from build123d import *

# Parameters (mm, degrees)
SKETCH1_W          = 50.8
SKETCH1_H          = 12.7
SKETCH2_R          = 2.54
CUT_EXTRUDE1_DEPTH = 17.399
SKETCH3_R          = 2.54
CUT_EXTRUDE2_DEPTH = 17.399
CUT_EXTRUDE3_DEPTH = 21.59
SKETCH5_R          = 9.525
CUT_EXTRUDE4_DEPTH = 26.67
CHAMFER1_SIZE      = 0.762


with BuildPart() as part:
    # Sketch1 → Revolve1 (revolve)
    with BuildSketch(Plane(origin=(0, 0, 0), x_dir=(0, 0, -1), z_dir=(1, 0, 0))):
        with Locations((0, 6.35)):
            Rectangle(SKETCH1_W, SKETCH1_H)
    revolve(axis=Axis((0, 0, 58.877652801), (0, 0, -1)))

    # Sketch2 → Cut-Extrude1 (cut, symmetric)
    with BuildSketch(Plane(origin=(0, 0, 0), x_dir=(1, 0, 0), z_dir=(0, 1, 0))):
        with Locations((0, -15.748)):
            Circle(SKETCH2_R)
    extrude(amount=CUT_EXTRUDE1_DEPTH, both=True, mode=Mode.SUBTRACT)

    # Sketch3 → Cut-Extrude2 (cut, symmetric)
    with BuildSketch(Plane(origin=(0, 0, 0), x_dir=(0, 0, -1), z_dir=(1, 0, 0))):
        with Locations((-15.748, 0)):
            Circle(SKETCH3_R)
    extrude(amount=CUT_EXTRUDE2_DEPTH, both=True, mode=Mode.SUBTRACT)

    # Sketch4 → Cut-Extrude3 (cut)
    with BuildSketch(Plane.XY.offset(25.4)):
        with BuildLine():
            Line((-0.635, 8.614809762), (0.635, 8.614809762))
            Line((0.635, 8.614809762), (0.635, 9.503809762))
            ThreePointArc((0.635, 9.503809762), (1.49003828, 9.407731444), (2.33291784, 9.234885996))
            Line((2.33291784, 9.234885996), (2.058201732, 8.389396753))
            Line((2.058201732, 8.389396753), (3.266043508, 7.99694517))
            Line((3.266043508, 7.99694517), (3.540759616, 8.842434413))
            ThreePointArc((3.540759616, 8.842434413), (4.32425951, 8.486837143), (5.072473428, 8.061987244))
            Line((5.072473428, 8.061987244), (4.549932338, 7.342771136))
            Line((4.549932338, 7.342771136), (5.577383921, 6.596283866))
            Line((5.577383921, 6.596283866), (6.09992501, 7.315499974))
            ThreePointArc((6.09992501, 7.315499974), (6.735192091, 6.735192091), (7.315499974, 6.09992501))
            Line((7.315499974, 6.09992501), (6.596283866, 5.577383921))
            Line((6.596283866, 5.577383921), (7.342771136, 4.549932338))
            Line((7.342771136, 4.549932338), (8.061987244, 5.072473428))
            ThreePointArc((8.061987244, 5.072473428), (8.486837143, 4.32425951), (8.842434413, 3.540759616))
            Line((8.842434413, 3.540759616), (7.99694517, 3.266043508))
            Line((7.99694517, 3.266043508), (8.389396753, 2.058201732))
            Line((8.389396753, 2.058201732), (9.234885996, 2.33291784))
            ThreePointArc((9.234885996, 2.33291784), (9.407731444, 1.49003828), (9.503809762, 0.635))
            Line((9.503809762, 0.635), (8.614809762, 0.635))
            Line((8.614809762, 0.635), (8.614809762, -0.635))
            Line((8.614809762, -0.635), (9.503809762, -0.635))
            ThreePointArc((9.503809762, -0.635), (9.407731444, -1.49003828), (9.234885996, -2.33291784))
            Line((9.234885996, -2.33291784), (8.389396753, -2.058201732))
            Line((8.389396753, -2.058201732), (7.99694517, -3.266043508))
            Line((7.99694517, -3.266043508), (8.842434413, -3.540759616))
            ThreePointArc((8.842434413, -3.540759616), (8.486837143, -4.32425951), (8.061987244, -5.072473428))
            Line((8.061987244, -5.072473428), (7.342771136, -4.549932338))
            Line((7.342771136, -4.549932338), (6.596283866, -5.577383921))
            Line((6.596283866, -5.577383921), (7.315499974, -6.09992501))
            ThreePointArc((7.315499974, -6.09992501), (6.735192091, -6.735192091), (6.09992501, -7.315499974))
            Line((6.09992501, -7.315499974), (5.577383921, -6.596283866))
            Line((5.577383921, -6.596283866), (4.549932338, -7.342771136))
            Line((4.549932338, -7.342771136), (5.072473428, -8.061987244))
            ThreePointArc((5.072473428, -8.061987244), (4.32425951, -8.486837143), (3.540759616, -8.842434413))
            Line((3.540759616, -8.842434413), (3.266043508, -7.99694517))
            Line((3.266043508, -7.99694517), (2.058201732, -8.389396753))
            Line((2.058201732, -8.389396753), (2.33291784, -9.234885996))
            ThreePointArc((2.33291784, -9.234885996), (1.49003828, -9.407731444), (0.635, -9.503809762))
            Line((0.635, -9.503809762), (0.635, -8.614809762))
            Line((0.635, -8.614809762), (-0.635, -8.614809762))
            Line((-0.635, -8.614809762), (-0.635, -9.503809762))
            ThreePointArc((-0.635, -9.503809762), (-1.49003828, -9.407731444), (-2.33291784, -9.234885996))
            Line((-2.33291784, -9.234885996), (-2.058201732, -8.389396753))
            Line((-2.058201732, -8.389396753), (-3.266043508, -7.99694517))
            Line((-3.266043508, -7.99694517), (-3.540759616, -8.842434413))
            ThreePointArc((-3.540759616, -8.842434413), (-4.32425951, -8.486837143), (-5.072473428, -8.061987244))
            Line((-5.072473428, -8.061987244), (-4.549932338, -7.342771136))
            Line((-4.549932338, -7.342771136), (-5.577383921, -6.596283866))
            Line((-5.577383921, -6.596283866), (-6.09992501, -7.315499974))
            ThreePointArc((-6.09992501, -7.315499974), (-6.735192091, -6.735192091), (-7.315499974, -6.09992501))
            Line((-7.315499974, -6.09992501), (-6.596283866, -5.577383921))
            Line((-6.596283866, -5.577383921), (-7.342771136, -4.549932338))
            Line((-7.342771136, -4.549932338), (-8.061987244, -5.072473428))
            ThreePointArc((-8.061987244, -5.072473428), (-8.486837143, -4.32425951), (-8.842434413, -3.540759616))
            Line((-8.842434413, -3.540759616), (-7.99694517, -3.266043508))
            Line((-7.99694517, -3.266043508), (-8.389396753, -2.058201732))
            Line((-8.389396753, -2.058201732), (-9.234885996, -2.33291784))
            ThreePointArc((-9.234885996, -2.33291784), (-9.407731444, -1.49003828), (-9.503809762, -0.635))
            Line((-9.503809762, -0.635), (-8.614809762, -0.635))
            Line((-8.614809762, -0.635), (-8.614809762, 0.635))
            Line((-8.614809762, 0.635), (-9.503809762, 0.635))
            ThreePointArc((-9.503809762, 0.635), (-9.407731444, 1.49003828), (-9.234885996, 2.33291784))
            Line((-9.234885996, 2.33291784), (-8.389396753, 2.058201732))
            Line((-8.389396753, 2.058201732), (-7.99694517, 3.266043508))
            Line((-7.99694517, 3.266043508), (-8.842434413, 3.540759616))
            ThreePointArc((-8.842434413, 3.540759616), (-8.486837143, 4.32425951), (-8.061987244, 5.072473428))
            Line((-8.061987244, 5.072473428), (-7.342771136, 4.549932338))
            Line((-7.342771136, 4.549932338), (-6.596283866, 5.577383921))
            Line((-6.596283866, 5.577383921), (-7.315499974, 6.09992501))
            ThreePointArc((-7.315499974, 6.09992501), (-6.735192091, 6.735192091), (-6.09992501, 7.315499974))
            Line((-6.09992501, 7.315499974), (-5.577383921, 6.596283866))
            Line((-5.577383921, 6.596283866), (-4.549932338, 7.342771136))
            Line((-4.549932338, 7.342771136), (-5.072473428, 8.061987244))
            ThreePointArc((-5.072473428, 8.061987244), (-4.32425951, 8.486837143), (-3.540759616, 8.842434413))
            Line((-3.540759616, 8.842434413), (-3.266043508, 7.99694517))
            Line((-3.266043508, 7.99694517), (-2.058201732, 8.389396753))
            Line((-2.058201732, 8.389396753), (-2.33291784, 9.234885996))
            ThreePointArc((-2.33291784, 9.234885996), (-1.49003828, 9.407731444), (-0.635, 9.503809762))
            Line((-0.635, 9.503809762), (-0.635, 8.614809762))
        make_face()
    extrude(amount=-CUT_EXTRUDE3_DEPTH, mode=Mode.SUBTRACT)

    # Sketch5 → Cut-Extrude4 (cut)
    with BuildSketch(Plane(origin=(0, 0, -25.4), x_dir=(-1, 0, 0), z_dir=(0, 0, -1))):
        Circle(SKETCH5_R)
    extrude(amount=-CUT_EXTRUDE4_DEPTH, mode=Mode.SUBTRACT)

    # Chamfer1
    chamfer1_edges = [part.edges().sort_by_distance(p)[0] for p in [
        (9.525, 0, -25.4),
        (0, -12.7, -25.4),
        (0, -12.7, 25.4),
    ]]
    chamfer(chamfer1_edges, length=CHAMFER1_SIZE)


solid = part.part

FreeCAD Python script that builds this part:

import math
import FreeCAD as App
import Part
import Sketcher
from FreeCAD import Vector
Q = App.Units.Quantity


def edges_at(feature, points):
    """Names of the edges that pass closest to the given points."""
    edges = feature.Shape.Edges
    near = lambda p: min(range(len(edges)), key=lambda i: edges[i].distToShape(Part.Vertex(*p))[0])
    return sorted({f"Edge{near(p) + 1}" for p in points})


def add_polygon(sketch, points):
    """Adds a closed chain of lines whose ends are joined by coincident constraints."""
    first, n = sketch.GeometryCount, len(points)
    for a, b in zip(points, points[1:] + points[:1]):
        sketch.addGeometry(Part.LineSegment(App.Vector(*a, 0), App.Vector(*b, 0)), False)
    for i in range(n):
        sketch.addConstraint(Sketcher.Constraint("Coincident", first + i, 2, first + (i + 1) % n, 1))

doc = App.newDocument("Part")
params = doc.addObject("Spreadsheet::Sheet", "Params")
for row, (alias, value) in enumerate([
    ("sketch1_height", "2 in"),
    ("sketch1_width", "0.5 in"),
    ("revolution_angle", "360 deg"),
    ("sketch2_diameter", "0.2 in"),
    ("pocket1_length", "1.37 in"),
    ("sketch3_diameter", "0.2 in"),
    ("pocket2_length", "1.37 in"),
    ("sketch4_radius", "0.375 in"),
    ("sketch4_width", "0.05 in"),
    ("sketch4_length", "0.05 in"),
    ("sketch4_width2", "0.035 in"),
    ("sketch4_length2", "0.035 in"),
    ("pocket3_length", "0.85 in"),
    ("sketch5_diameter", "0.75 in"),
    ("pocket4_length", "1.05 in"),
    ("chamfer_size", "0.03 in"),
], start=1):
    params.set(f"A{row}", alias)
    params.set(f"B{row}", "=" + value)
    params.setAlias(f"B{row}", alias)

body = doc.addObject("PartDesign::Body", "Body")

# Sketch on YZ plane
sketch1 = body.newObject("Sketcher::SketchObject", "Sketch")
sketch1.AttachmentSupport = (doc.getObject("YZ_Plane"), [""])
sketch1.MapMode = "FlatFace"
add_polygon(sketch1, [(13, 25), (0, 25), (0, -25), (13, -25)])  # lines 0-3
sketch1.addConstraint([
    Sketcher.Constraint("Horizontal", 0),
    Sketcher.Constraint("Vertical", 1),
    Sketcher.Constraint("Horizontal", 2),
    Sketcher.Constraint("Vertical", 3),
    Sketcher.Constraint("Symmetric", 0, 2, 1, 2, -1, 1),
    Sketcher.Constraint("DistanceY", 1, 2, 1, 1, Q("2 in")),
    Sketcher.Constraint("DistanceX", 0, 2, 0, 1, Q("0.5 in")),
])
sketch1.setExpression("Constraints[9]", "Params.sketch1_height")
sketch1.setExpression("Constraints[10]", "Params.sketch1_width")
revolution = body.newObject("PartDesign::Revolution", "Revolution")
revolution.Profile = sketch1
revolution.ReferenceAxis = (sketch1, ["V_Axis"])
revolution.setExpression("Angle", "Params.revolution_angle")

# Sketch on XZ plane
sketch2 = body.newObject("Sketcher::SketchObject", "Sketch001")
sketch2.AttachmentSupport = (doc.getObject("XZ_Plane"), [""])
sketch2.MapMode = "FlatFace"
sketch2.addGeometry(Part.Circle(Vector(0, 15.7, 0), Vector(0, 0, 1), 2.5), False)
sketch2.addConstraint([
    Sketcher.Constraint("PointOnObject", 0, 3, -2),
    Sketcher.Constraint("Diameter", 0, Q("0.2 in")),
    Sketcher.Constraint("DistanceY", -1, 1, 0, 3, Q("0.62 in")),
])
sketch2.setExpression("Constraints[1]", "Params.sketch2_diameter")
pocket1 = body.newObject("PartDesign::Pocket", "Pocket")
pocket1.Profile = sketch2
pocket1.setExpression("Length", "Params.pocket1_length")
pocket1.Midplane = True

# Sketch on YZ plane
sketch3 = body.newObject("Sketcher::SketchObject", "Sketch002")
sketch3.AttachmentSupport = (doc.getObject("YZ_Plane"), [""])
sketch3.MapMode = "FlatFace"
sketch3.addGeometry(Part.Circle(Vector(0, 15.7, 0), Vector(0, 0, 1), 2.5), False)
sketch3.addConstraint([
    Sketcher.Constraint("PointOnObject", 0, 3, -2),
    Sketcher.Constraint("Diameter", 0, Q("0.2 in")),
    Sketcher.Constraint("DistanceY", -1, 1, 0, 3, Q("0.62 in")),
])
sketch3.setExpression("Constraints[1]", "Params.sketch3_diameter")
pocket2 = body.newObject("PartDesign::Pocket", "Pocket001")
pocket2.Profile = sketch3
pocket2.setExpression("Length", "Params.pocket2_length")
pocket2.Midplane = True

# Sketch on XY plane
sketch4 = body.newObject("Sketcher::SketchObject", "Sketch003")
sketch4.AttachmentSupport = (doc.getObject("XY_Plane"), [""])
sketch4.MapMode = "FlatFace"
sketch4.AttachmentOffset = App.Placement(Vector(0, 0, 1 * 25.4), App.Rotation())
sketch4.addGeometry([
    Part.LineSegment(Vector(0.6, 8.6, 0), Vector(-0.6, 8.6, 0)),  # 0
    Part.LineSegment(Vector(-0.6, 8.6, 0), Vector(-0.6, 9.5, 0)),  # 1
    Part.ArcOfCircle(Part.Circle(Vector(0, 0, 0), Vector(0, 0, 1), 9.5), math.radians(93.82), math.radians(104.18)),  # 2
    Part.LineSegment(Vector(-2.3, 9.2, 0), Vector(-2.1, 8.4, 0)),  # 3
    Part.LineSegment(Vector(-2.1, 8.4, 0), Vector(-3.3, 8, 0)),  # 4
    Part.LineSegment(Vector(-3.3, 8, 0), Vector(-3.5, 8.8, 0)),  # 5
    Part.ArcOfCircle(Part.Circle(Vector(0, 0, 0), Vector(0, 0, 1), 9.5), math.radians(111.82), math.radians(122.18)),  # 6
    Part.LineSegment(Vector(-5.1, 8.1, 0), Vector(-4.5, 7.3, 0)),  # 7
    Part.LineSegment(Vector(-4.5, 7.3, 0), Vector(-5.6, 6.6, 0)),  # 8
    Part.LineSegment(Vector(-5.6, 6.6, 0), Vector(-6.1, 7.3, 0)),  # 9
    Part.ArcOfCircle(Part.Circle(Vector(0, 0, 0), Vector(0, 0, 1), 9.5), math.radians(129.82), math.radians(140.18)),  # 10
    Part.LineSegment(Vector(-7.3, 6.1, 0), Vector(-6.6, 5.6, 0)),  # 11
    Part.LineSegment(Vector(-6.6, 5.6, 0), Vector(-7.3, 4.5, 0)),  # 12
    Part.LineSegment(Vector(-7.3, 4.5, 0), Vector(-8.1, 5.1, 0)),  # 13
    Part.ArcOfCircle(Part.Circle(Vector(0, 0, 0), Vector(0, 0, 1), 9.5), math.radians(147.82), math.radians(158.18)),  # 14
    Part.LineSegment(Vector(-8.8, 3.5, 0), Vector(-8, 3.3, 0)),  # 15
    Part.LineSegment(Vector(-8, 3.3, 0), Vector(-8.4, 2.1, 0)),  # 16
    Part.LineSegment(Vector(-8.4, 2.1, 0), Vector(-9.2, 2.3, 0)),  # 17
    Part.ArcOfCircle(Part.Circle(Vector(0, 0, 0), Vector(0, 0, 1), 9.5), math.radians(165.82), math.radians(176.18)),  # 18
    Part.LineSegment(Vector(-9.5, 0.6, 0), Vector(-8.6, 0.6, 0)),  # 19
    Part.LineSegment(Vector(-8.6, 0.6, 0), Vector(-8.6, -0.6, 0)),  # 20
    Part.LineSegment(Vector(-8.6, -0.6, 0), Vector(-9.5, -0.6, 0)),  # 21
    Part.ArcOfCircle(Part.Circle(Vector(0, 0, 0), Vector(0, 0, 1), 9.5), math.radians(-176.18), math.radians(-165.82)),  # 22
    Part.LineSegment(Vector(-9.2, -2.3, 0), Vector(-8.4, -2.1, 0)),  # 23
    Part.LineSegment(Vector(-8.4, -2.1, 0), Vector(-8, -3.3, 0)),  # 24
    Part.LineSegment(Vector(-8, -3.3, 0), Vector(-8.8, -3.5, 0)),  # 25
    Part.ArcOfCircle(Part.Circle(Vector(0, 0, 0), Vector(0, 0, 1), 9.5), math.radians(-158.18), math.radians(-147.82)),  # 26
    Part.LineSegment(Vector(-8.1, -5.1, 0), Vector(-7.3, -4.5, 0)),  # 27
    Part.LineSegment(Vector(-7.3, -4.5, 0), Vector(-6.6, -5.6, 0)),  # 28
    Part.LineSegment(Vector(-6.6, -5.6, 0), Vector(-7.3, -6.1, 0)),  # 29
    Part.ArcOfCircle(Part.Circle(Vector(0, 0, 0), Vector(0, 0, 1), 9.5), math.radians(-140.18), math.radians(-129.82)),  # 30
    Part.LineSegment(Vector(-6.1, -7.3, 0), Vector(-5.6, -6.6, 0)),  # 31
    Part.LineSegment(Vector(-5.6, -6.6, 0), Vector(-4.5, -7.3, 0)),  # 32
    Part.LineSegment(Vector(-4.5, -7.3, 0), Vector(-5.1, -8.1, 0)),  # 33
    Part.ArcOfCircle(Part.Circle(Vector(0, 0, 0), Vector(0, 0, 1), 9.5), math.radians(-122.18), math.radians(-111.82)),  # 34
    Part.LineSegment(Vector(-3.5, -8.8, 0), Vector(-3.3, -8, 0)),  # 35
    Part.LineSegment(Vector(-3.3, -8, 0), Vector(-2.1, -8.4, 0)),  # 36
    Part.LineSegment(Vector(-2.1, -8.4, 0), Vector(-2.3, -9.2, 0)),  # 37
    Part.ArcOfCircle(Part.Circle(Vector(0, 0, 0), Vector(0, 0, 1), 9.5), math.radians(-104.18), math.radians(-93.82)),  # 38
    Part.LineSegment(Vector(-0.6, -9.5, 0), Vector(-0.6, -8.6, 0)),  # 39
    Part.LineSegment(Vector(-0.6, -8.6, 0), Vector(0.6, -8.6, 0)),  # 40
    Part.LineSegment(Vector(0.6, -8.6, 0), Vector(0.6, -9.5, 0)),  # 41
    Part.ArcOfCircle(Part.Circle(Vector(0, 0, 0), Vector(0, 0, 1), 9.5), math.radians(-86.18), math.radians(-75.82)),  # 42
    Part.LineSegment(Vector(2.3, -9.2, 0), Vector(2.1, -8.4, 0)),  # 43
    Part.LineSegment(Vector(2.1, -8.4, 0), Vector(3.3, -8, 0)),  # 44
    Part.LineSegment(Vector(3.3, -8, 0), Vector(3.5, -8.8, 0)),  # 45
    Part.ArcOfCircle(Part.Circle(Vector(0, 0, 0), Vector(0, 0, 1), 9.5), math.radians(-68.18), math.radians(-57.82)),  # 46
    Part.LineSegment(Vector(5.1, -8.1, 0), Vector(4.5, -7.3, 0)),  # 47
    Part.LineSegment(Vector(4.5, -7.3, 0), Vector(5.6, -6.6, 0)),  # 48
    Part.LineSegment(Vector(5.6, -6.6, 0), Vector(6.1, -7.3, 0)),  # 49
    Part.ArcOfCircle(Part.Circle(Vector(0, 0, 0), Vector(0, 0, 1), 9.5), math.radians(-50.18), math.radians(-39.82)),  # 50
    Part.LineSegment(Vector(7.3, -6.1, 0), Vector(6.6, -5.6, 0)),  # 51
    Part.LineSegment(Vector(6.6, -5.6, 0), Vector(7.3, -4.5, 0)),  # 52
    Part.LineSegment(Vector(7.3, -4.5, 0), Vector(8.1, -5.1, 0)),  # 53
    Part.ArcOfCircle(Part.Circle(Vector(0, 0, 0), Vector(0, 0, 1), 9.5), math.radians(-32.18), math.radians(-21.82)),  # 54
    Part.LineSegment(Vector(8.8, -3.5, 0), Vector(8, -3.3, 0)),  # 55
    Part.LineSegment(Vector(8, -3.3, 0), Vector(8.4, -2.1, 0)),  # 56
    Part.LineSegment(Vector(8.4, -2.1, 0), Vector(9.2, -2.3, 0)),  # 57
    Part.ArcOfCircle(Part.Circle(Vector(0, 0, 0), Vector(0, 0, 1), 9.5), math.radians(-14.18), math.radians(-3.82)),  # 58
    Part.LineSegment(Vector(9.5, -0.6, 0), Vector(8.6, -0.6, 0)),  # 59
    Part.LineSegment(Vector(8.6, -0.6, 0), Vector(8.6, 0.6, 0)),  # 60
    Part.LineSegment(Vector(8.6, 0.6, 0), Vector(9.5, 0.6, 0)),  # 61
    Part.ArcOfCircle(Part.Circle(Vector(0, 0, 0), Vector(0, 0, 1), 9.5), math.radians(3.82), math.radians(14.18)),  # 62
    Part.LineSegment(Vector(9.2, 2.3, 0), Vector(8.4, 2.1, 0)),  # 63
    Part.LineSegment(Vector(8.4, 2.1, 0), Vector(8, 3.3, 0)),  # 64
    Part.LineSegment(Vector(8, 3.3, 0), Vector(8.8, 3.5, 0)),  # 65
    Part.ArcOfCircle(Part.Circle(Vector(0, 0, 0), Vector(0, 0, 1), 9.5), math.radians(21.82), math.radians(32.18)),  # 66
    Part.LineSegment(Vector(8.1, 5.1, 0), Vector(7.3, 4.5, 0)),  # 67
    Part.LineSegment(Vector(7.3, 4.5, 0), Vector(6.6, 5.6, 0)),  # 68
    Part.LineSegment(Vector(6.6, 5.6, 0), Vector(7.3, 6.1, 0)),  # 69
    Part.ArcOfCircle(Part.Circle(Vector(0, 0, 0), Vector(0, 0, 1), 9.5), math.radians(39.82), math.radians(50.18)),  # 70
    Part.LineSegment(Vector(6.1, 7.3, 0), Vector(5.6, 6.6, 0)),  # 71
    Part.LineSegment(Vector(5.6, 6.6, 0), Vector(4.5, 7.3, 0)),  # 72
    Part.LineSegment(Vector(4.5, 7.3, 0), Vector(5.1, 8.1, 0)),  # 73
    Part.ArcOfCircle(Part.Circle(Vector(0, 0, 0), Vector(0, 0, 1), 9.5), math.radians(57.82), math.radians(68.18)),  # 74
    Part.LineSegment(Vector(3.5, 8.8, 0), Vector(3.3, 8, 0)),  # 75
    Part.LineSegment(Vector(3.3, 8, 0), Vector(2.1, 8.4, 0)),  # 76
    Part.LineSegment(Vector(2.1, 8.4, 0), Vector(2.3, 9.2, 0)),  # 77
    Part.ArcOfCircle(Part.Circle(Vector(0, 0, 0), Vector(0, 0, 1), 9.5), math.radians(75.82), math.radians(86.18)),  # 78
    Part.LineSegment(Vector(0.6, 9.5, 0), Vector(0.6, 8.6, 0)),  # 79
], False)
sketch4.addConstraint([
    Sketcher.Constraint("Coincident", 0, 2, 1, 1),
    Sketcher.Constraint("Coincident", 1, 2, 2, 1),
    Sketcher.Constraint("Coincident", 2, 2, 3, 1),
    Sketcher.Constraint("Coincident", 3, 2, 4, 1),
    Sketcher.Constraint("Coincident", 4, 2, 5, 1),
    Sketcher.Constraint("Coincident", 5, 2, 6, 1),
    Sketcher.Constraint("Coincident", 6, 2, 7, 1),
    Sketcher.Constraint("Coincident", 7, 2, 8, 1),
    Sketcher.Constraint("Coincident", 8, 2, 9, 1),
    Sketcher.Constraint("Coincident", 9, 2, 10, 1),
    Sketcher.Constraint("Coincident", 10, 2, 11, 1),
    Sketcher.Constraint("Coincident", 11, 2, 12, 1),
    Sketcher.Constraint("Coincident", 12, 2, 13, 1),
    Sketcher.Constraint("Coincident", 13, 2, 14, 1),
    Sketcher.Constraint("Coincident", 14, 2, 15, 1),
    Sketcher.Constraint("Coincident", 15, 2, 16, 1),
    Sketcher.Constraint("Coincident", 16, 2, 17, 1),
    Sketcher.Constraint("Coincident", 17, 2, 18, 1),
    Sketcher.Constraint("Coincident", 18, 2, 19, 1),
    Sketcher.Constraint("Coincident", 19, 2, 20, 1),
    Sketcher.Constraint("Coincident", 20, 2, 21, 1),
    Sketcher.Constraint("Coincident", 21, 2, 22, 1),
    Sketcher.Constraint("Coincident", 22, 2, 23, 1),
    Sketcher.Constraint("Coincident", 23, 2, 24, 1),
    Sketcher.Constraint("Coincident", 24, 2, 25, 1),
    Sketcher.Constraint("Coincident", 25, 2, 26, 1),
    Sketcher.Constraint("Coincident", 26, 2, 27, 1),
    Sketcher.Constraint("Coincident", 27, 2, 28, 1),
    Sketcher.Constraint("Coincident", 28, 2, 29, 1),
    Sketcher.Constraint("Coincident", 29, 2, 30, 1),
    Sketcher.Constraint("Coincident", 30, 2, 31, 1),
    Sketcher.Constraint("Coincident", 31, 2, 32, 1),
    Sketcher.Constraint("Coincident", 32, 2, 33, 1),
    Sketcher.Constraint("Coincident", 33, 2, 34, 1),
    Sketcher.Constraint("Coincident", 34, 2, 35, 1),
    Sketcher.Constraint("Coincident", 35, 2, 36, 1),
    Sketcher.Constraint("Coincident", 36, 2, 37, 1),
    Sketcher.Constraint("Coincident", 37, 2, 38, 1),
    Sketcher.Constraint("Coincident", 38, 2, 39, 1),
    Sketcher.Constraint("Coincident", 39, 2, 40, 1),
    Sketcher.Constraint("Coincident", 40, 2, 41, 1),
    Sketcher.Constraint("Coincident", 41, 2, 42, 1),
    Sketcher.Constraint("Coincident", 42, 2, 43, 1),
    Sketcher.Constraint("Coincident", 43, 2, 44, 1),
    Sketcher.Constraint("Coincident", 44, 2, 45, 1),
    Sketcher.Constraint("Coincident", 45, 2, 46, 1),
    Sketcher.Constraint("Coincident", 46, 2, 47, 1),
    Sketcher.Constraint("Coincident", 47, 2, 48, 1),
    Sketcher.Constraint("Coincident", 48, 2, 49, 1),
    Sketcher.Constraint("Coincident", 49, 2, 50, 1),
    Sketcher.Constraint("Coincident", 50, 2, 51, 1),
    Sketcher.Constraint("Coincident", 51, 2, 52, 1),
    Sketcher.Constraint("Coincident", 52, 2, 53, 1),
    Sketcher.Constraint("Coincident", 53, 2, 54, 1),
    Sketcher.Constraint("Coincident", 54, 2, 55, 1),
    Sketcher.Constraint("Coincident", 55, 2, 56, 1),
    Sketcher.Constraint("Coincident", 56, 2, 57, 1),
    Sketcher.Constraint("Coincident", 57, 2, 58, 1),
    Sketcher.Constraint("Coincident", 58, 2, 59, 1),
    Sketcher.Constraint("Coincident", 59, 2, 60, 1),
    Sketcher.Constraint("Coincident", 60, 2, 61, 1),
    Sketcher.Constraint("Coincident", 61, 2, 62, 1),
    Sketcher.Constraint("Coincident", 62, 2, 63, 1),
    Sketcher.Constraint("Coincident", 63, 2, 64, 1),
    Sketcher.Constraint("Coincident", 64, 2, 65, 1),
    Sketcher.Constraint("Coincident", 65, 2, 66, 1),
    Sketcher.Constraint("Coincident", 66, 2, 67, 1),
    Sketcher.Constraint("Coincident", 67, 2, 68, 1),
    Sketcher.Constraint("Coincident", 68, 2, 69, 1),
    Sketcher.Constraint("Coincident", 69, 2, 70, 1),
    Sketcher.Constraint("Coincident", 70, 2, 71, 1),
    Sketcher.Constraint("Coincident", 71, 2, 72, 1),
    Sketcher.Constraint("Coincident", 72, 2, 73, 1),
    Sketcher.Constraint("Coincident", 73, 2, 74, 1),
    Sketcher.Constraint("Coincident", 74, 2, 75, 1),
    Sketcher.Constraint("Coincident", 75, 2, 76, 1),
    Sketcher.Constraint("Coincident", 76, 2, 77, 1),
    Sketcher.Constraint("Coincident", 77, 2, 78, 1),
    Sketcher.Constraint("Coincident", 78, 2, 79, 1),
    Sketcher.Constraint("Coincident", 79, 2, 0, 1),
    Sketcher.Constraint("Horizontal", 0),
    Sketcher.Constraint("Vertical", 1),
    Sketcher.Constraint("Horizontal", 19),
    Sketcher.Constraint("Vertical", 20),
    Sketcher.Constraint("Horizontal", 21),
    Sketcher.Constraint("Vertical", 39),
    Sketcher.Constraint("Horizontal", 40),
    Sketcher.Constraint("Vertical", 41),
    Sketcher.Constraint("Horizontal", 59),
    Sketcher.Constraint("Vertical", 60),
    Sketcher.Constraint("Horizontal", 61),
    Sketcher.Constraint("Vertical", 79),
    Sketcher.Constraint("Coincident", 2, 3, -1, 1),
    Sketcher.Constraint("Coincident", 6, 3, -1, 1),
    Sketcher.Constraint("Coincident", 10, 3, -1, 1),
    Sketcher.Constraint("Coincident", 14, 3, -1, 1),
    Sketcher.Constraint("Coincident", 18, 3, -1, 1),
    Sketcher.Constraint("Coincident", 22, 3, -1, 1),
    Sketcher.Constraint("Coincident", 26, 3, -1, 1),
    Sketcher.Constraint("Coincident", 30, 3, -1, 1),
    Sketcher.Constraint("Coincident", 34, 3, -1, 1),
    Sketcher.Constraint("Coincident", 38, 3, -1, 1),
    Sketcher.Constraint("Coincident", 42, 3, -1, 1),
    Sketcher.Constraint("Coincident", 46, 3, -1, 1),
    Sketcher.Constraint("Coincident", 50, 3, -1, 1),
    Sketcher.Constraint("Coincident", 54, 3, -1, 1),
    Sketcher.Constraint("Coincident", 58, 3, -1, 1),
    Sketcher.Constraint("Coincident", 62, 3, -1, 1),
    Sketcher.Constraint("Coincident", 66, 3, -1, 1),
    Sketcher.Constraint("Coincident", 70, 3, -1, 1),
    Sketcher.Constraint("Coincident", 74, 3, -1, 1),
    Sketcher.Constraint("Coincident", 78, 3, -1, 1),
    Sketcher.Constraint("Equal", 2, 6),
    Sketcher.Constraint("Equal", 6, 10),
    Sketcher.Constraint("Equal", 10, 14),
    Sketcher.Constraint("Equal", 14, 18),
    Sketcher.Constraint("Equal", 18, 22),
    Sketcher.Constraint("Equal", 22, 26),
    Sketcher.Constraint("Equal", 26, 30),
    Sketcher.Constraint("Equal", 30, 34),
    Sketcher.Constraint("Equal", 34, 38),
    Sketcher.Constraint("Equal", 38, 42),
    Sketcher.Constraint("Equal", 42, 46),
    Sketcher.Constraint("Equal", 46, 50),
    Sketcher.Constraint("Equal", 50, 54),
    Sketcher.Constraint("Equal", 54, 58),
    Sketcher.Constraint("Equal", 58, 62),
    Sketcher.Constraint("Equal", 62, 66),
    Sketcher.Constraint("Equal", 66, 70),
    Sketcher.Constraint("Equal", 70, 74),
    Sketcher.Constraint("Equal", 74, 78),
    Sketcher.Constraint("Symmetric", 0, 2, 40, 2, -1, 1),
    Sketcher.Constraint("Symmetric", 3, 2, 43, 2, -1, 1),
    Sketcher.Constraint("Symmetric", 4, 2, 44, 2, -1, 1),
    Sketcher.Constraint("Symmetric", 7, 2, 47, 2, -1, 1),
    Sketcher.Constraint("Symmetric", 8, 2, 48, 2, -1, 1),
    Sketcher.Constraint("Symmetric", 11, 2, 51, 2, -1, 1),
    Sketcher.Constraint("Symmetric", 12, 2, 52, 2, -1, 1),
    Sketcher.Constraint("Symmetric", 15, 2, 55, 2, -1, 1),
    Sketcher.Constraint("Symmetric", 16, 2, 56, 2, -1, 1),
    Sketcher.Constraint("Symmetric", 19, 2, 59, 2, -1, 1),
    Sketcher.Constraint("Symmetric", 23, 2, 63, 2, -1, 1),
    Sketcher.Constraint("Symmetric", 24, 2, 64, 2, -1, 1),
    Sketcher.Constraint("Symmetric", 27, 2, 67, 2, -1, 1),
    Sketcher.Constraint("Symmetric", 28, 2, 68, 2, -1, 1),
    Sketcher.Constraint("Symmetric", 31, 2, 71, 2, -1, 1),
    Sketcher.Constraint("Symmetric", 32, 2, 72, 2, -1, 1),
    Sketcher.Constraint("Symmetric", 35, 2, 75, 2, -1, 1),
    Sketcher.Constraint("Symmetric", 36, 2, 76, 2, -1, 1),
    Sketcher.Constraint("Symmetric", 36, 2, 43, 2, -2),
    Sketcher.Constraint("Symmetric", 35, 2, 44, 2, -2),
    Sketcher.Constraint("Symmetric", 32, 2, 47, 2, -2),
    Sketcher.Constraint("Symmetric", 31, 2, 48, 2, -2),
    Sketcher.Constraint("Symmetric", 28, 2, 51, 2, -2),
    Sketcher.Constraint("Symmetric", 27, 2, 52, 2, -2),
    Sketcher.Constraint("Symmetric", 24, 2, 55, 2, -2),
    Sketcher.Constraint("Symmetric", 23, 2, 56, 2, -2),
    Sketcher.Constraint("Perpendicular", 3, 4),
    Sketcher.Constraint("Perpendicular", 4, 5),
    Sketcher.Constraint("Perpendicular", 7, 8),
    Sketcher.Constraint("Perpendicular", 8, 9),
    Sketcher.Constraint("Perpendicular", 11, 12),
    Sketcher.Constraint("Perpendicular", 12, 13),
    Sketcher.Constraint("Perpendicular", 15, 16),
    Sketcher.Constraint("Perpendicular", 16, 17),
    Sketcher.Constraint("Perpendicular", 5, 23),
    Sketcher.Constraint("Perpendicular", 23, 24),
    Sketcher.Constraint("Perpendicular", 24, 25),
    Sketcher.Constraint("Perpendicular", 9, 27),
    Sketcher.Constraint("Perpendicular", 27, 28),
    Sketcher.Constraint("Perpendicular", 28, 29),
    Sketcher.Constraint("Perpendicular", 13, 31),
    Sketcher.Constraint("Perpendicular", 32, 33),
    Sketcher.Constraint("Perpendicular", 17, 35),
    Sketcher.Constraint("Perpendicular", 36, 37),
    Sketcher.Constraint("Perpendicular", 25, 43),
    Sketcher.Constraint("Perpendicular", 44, 45),
    Sketcher.Constraint("Perpendicular", 29, 47),
    Sketcher.Constraint("Perpendicular", 48, 49),
    Sketcher.Constraint("Perpendicular", 33, 51),
    Sketcher.Constraint("Perpendicular", 52, 53),
    Sketcher.Constraint("Perpendicular", 37, 55),
    Sketcher.Constraint("Perpendicular", 56, 57),
    Sketcher.Constraint("Perpendicular", 45, 63),
    Sketcher.Constraint("Perpendicular", 64, 65),
    Sketcher.Constraint("Perpendicular", 49, 67),
    Sketcher.Constraint("Perpendicular", 68, 69),
    Sketcher.Constraint("Perpendicular", 53, 71),
    Sketcher.Constraint("Perpendicular", 72, 73),
    Sketcher.Constraint("Perpendicular", 57, 75),
    Sketcher.Constraint("Perpendicular", 76, 77),
    Sketcher.Constraint("Horizontal", 38, 2, 41, 2),
    Sketcher.Constraint("Horizontal", 21, 2, 58, 2),
    Sketcher.Constraint("Horizontal", 19, 2, 60, 2),
    Sketcher.Constraint("Horizontal", 1, 2, 78, 2),
    Sketcher.Constraint("Equal", 61, 1),
    Sketcher.Constraint("Equal", 40, 20),
    Sketcher.Constraint("Equal", 3, 5),
    Sketcher.Constraint("Equal", 5, 7),
    Sketcher.Constraint("Equal", 4, 8),
    Sketcher.Constraint("Equal", 7, 9),
    Sketcher.Constraint("Equal", 9, 11),
    Sketcher.Constraint("Equal", 8, 12),
    Sketcher.Constraint("Equal", 11, 13),
    Sketcher.Constraint("Equal", 13, 15),
    Sketcher.Constraint("Equal", 12, 16),
    Sketcher.Constraint("Equal", 15, 17),
    Sketcher.Constraint("Angle", 3, Q("-72 deg")),
    Sketcher.Constraint("Angle", 7, Q("-54 deg")),
    Sketcher.Constraint("Radius", 2, Q("0.375 in")),
    Sketcher.Constraint("DistanceX", 0, 2, 0, 1, Q("0.05 in")),
    Sketcher.Constraint("Distance", 4, Q("0.05 in")),
    Sketcher.Constraint("DistanceX", 19, 1, 19, 2, Q("0.035 in")),
    Sketcher.Constraint("Distance", 3, Q("0.035 in")),
])
sketch4.setExpression("Constraints[209]", "Params.sketch4_radius")
sketch4.setExpression("Constraints[210]", "Params.sketch4_width")
sketch4.setExpression("Constraints[211]", "Params.sketch4_length")
sketch4.setExpression("Constraints[212]", "Params.sketch4_width2")
sketch4.setExpression("Constraints[213]", "Params.sketch4_length2")
pocket3 = body.newObject("PartDesign::Pocket", "Pocket002")
pocket3.Profile = sketch4
pocket3.setExpression("Length", "Params.pocket3_length")

# Sketch on XY plane
sketch5 = body.newObject("Sketcher::SketchObject", "Sketch004")
sketch5.AttachmentSupport = (doc.getObject("XY_Plane"), [""])
sketch5.MapMode = "FlatFace"
sketch5.AttachmentOffset = App.Placement(Vector(0, 0, -1 * 25.4), App.Rotation())
sketch5.addGeometry(Part.Circle(Vector(0, 0, 0), Vector(0, 0, 1), 10), False)
sketch5.addConstraint([
    Sketcher.Constraint("Coincident", 0, 3, -1, 1),
    Sketcher.Constraint("Diameter", 0, Q("0.75 in")),
])
sketch5.setExpression("Constraints[1]", "Params.sketch5_diameter")
pocket4 = body.newObject("PartDesign::Pocket", "Pocket003")
pocket4.Profile = sketch5
pocket4.setExpression("Length", "Params.pocket4_length")
pocket4.Reversed = True
doc.recompute()

chamfer = body.newObject("PartDesign::Chamfer", "Chamfer")
chamfer.Base = (pocket4, edges_at(pocket4, [(9.525, 0, -25.4), (0, -12.7, -25.4), (0, -12.7, 25.4)]))
chamfer.setExpression("Size", "Params.chamfer_size")

doc.recompute()
